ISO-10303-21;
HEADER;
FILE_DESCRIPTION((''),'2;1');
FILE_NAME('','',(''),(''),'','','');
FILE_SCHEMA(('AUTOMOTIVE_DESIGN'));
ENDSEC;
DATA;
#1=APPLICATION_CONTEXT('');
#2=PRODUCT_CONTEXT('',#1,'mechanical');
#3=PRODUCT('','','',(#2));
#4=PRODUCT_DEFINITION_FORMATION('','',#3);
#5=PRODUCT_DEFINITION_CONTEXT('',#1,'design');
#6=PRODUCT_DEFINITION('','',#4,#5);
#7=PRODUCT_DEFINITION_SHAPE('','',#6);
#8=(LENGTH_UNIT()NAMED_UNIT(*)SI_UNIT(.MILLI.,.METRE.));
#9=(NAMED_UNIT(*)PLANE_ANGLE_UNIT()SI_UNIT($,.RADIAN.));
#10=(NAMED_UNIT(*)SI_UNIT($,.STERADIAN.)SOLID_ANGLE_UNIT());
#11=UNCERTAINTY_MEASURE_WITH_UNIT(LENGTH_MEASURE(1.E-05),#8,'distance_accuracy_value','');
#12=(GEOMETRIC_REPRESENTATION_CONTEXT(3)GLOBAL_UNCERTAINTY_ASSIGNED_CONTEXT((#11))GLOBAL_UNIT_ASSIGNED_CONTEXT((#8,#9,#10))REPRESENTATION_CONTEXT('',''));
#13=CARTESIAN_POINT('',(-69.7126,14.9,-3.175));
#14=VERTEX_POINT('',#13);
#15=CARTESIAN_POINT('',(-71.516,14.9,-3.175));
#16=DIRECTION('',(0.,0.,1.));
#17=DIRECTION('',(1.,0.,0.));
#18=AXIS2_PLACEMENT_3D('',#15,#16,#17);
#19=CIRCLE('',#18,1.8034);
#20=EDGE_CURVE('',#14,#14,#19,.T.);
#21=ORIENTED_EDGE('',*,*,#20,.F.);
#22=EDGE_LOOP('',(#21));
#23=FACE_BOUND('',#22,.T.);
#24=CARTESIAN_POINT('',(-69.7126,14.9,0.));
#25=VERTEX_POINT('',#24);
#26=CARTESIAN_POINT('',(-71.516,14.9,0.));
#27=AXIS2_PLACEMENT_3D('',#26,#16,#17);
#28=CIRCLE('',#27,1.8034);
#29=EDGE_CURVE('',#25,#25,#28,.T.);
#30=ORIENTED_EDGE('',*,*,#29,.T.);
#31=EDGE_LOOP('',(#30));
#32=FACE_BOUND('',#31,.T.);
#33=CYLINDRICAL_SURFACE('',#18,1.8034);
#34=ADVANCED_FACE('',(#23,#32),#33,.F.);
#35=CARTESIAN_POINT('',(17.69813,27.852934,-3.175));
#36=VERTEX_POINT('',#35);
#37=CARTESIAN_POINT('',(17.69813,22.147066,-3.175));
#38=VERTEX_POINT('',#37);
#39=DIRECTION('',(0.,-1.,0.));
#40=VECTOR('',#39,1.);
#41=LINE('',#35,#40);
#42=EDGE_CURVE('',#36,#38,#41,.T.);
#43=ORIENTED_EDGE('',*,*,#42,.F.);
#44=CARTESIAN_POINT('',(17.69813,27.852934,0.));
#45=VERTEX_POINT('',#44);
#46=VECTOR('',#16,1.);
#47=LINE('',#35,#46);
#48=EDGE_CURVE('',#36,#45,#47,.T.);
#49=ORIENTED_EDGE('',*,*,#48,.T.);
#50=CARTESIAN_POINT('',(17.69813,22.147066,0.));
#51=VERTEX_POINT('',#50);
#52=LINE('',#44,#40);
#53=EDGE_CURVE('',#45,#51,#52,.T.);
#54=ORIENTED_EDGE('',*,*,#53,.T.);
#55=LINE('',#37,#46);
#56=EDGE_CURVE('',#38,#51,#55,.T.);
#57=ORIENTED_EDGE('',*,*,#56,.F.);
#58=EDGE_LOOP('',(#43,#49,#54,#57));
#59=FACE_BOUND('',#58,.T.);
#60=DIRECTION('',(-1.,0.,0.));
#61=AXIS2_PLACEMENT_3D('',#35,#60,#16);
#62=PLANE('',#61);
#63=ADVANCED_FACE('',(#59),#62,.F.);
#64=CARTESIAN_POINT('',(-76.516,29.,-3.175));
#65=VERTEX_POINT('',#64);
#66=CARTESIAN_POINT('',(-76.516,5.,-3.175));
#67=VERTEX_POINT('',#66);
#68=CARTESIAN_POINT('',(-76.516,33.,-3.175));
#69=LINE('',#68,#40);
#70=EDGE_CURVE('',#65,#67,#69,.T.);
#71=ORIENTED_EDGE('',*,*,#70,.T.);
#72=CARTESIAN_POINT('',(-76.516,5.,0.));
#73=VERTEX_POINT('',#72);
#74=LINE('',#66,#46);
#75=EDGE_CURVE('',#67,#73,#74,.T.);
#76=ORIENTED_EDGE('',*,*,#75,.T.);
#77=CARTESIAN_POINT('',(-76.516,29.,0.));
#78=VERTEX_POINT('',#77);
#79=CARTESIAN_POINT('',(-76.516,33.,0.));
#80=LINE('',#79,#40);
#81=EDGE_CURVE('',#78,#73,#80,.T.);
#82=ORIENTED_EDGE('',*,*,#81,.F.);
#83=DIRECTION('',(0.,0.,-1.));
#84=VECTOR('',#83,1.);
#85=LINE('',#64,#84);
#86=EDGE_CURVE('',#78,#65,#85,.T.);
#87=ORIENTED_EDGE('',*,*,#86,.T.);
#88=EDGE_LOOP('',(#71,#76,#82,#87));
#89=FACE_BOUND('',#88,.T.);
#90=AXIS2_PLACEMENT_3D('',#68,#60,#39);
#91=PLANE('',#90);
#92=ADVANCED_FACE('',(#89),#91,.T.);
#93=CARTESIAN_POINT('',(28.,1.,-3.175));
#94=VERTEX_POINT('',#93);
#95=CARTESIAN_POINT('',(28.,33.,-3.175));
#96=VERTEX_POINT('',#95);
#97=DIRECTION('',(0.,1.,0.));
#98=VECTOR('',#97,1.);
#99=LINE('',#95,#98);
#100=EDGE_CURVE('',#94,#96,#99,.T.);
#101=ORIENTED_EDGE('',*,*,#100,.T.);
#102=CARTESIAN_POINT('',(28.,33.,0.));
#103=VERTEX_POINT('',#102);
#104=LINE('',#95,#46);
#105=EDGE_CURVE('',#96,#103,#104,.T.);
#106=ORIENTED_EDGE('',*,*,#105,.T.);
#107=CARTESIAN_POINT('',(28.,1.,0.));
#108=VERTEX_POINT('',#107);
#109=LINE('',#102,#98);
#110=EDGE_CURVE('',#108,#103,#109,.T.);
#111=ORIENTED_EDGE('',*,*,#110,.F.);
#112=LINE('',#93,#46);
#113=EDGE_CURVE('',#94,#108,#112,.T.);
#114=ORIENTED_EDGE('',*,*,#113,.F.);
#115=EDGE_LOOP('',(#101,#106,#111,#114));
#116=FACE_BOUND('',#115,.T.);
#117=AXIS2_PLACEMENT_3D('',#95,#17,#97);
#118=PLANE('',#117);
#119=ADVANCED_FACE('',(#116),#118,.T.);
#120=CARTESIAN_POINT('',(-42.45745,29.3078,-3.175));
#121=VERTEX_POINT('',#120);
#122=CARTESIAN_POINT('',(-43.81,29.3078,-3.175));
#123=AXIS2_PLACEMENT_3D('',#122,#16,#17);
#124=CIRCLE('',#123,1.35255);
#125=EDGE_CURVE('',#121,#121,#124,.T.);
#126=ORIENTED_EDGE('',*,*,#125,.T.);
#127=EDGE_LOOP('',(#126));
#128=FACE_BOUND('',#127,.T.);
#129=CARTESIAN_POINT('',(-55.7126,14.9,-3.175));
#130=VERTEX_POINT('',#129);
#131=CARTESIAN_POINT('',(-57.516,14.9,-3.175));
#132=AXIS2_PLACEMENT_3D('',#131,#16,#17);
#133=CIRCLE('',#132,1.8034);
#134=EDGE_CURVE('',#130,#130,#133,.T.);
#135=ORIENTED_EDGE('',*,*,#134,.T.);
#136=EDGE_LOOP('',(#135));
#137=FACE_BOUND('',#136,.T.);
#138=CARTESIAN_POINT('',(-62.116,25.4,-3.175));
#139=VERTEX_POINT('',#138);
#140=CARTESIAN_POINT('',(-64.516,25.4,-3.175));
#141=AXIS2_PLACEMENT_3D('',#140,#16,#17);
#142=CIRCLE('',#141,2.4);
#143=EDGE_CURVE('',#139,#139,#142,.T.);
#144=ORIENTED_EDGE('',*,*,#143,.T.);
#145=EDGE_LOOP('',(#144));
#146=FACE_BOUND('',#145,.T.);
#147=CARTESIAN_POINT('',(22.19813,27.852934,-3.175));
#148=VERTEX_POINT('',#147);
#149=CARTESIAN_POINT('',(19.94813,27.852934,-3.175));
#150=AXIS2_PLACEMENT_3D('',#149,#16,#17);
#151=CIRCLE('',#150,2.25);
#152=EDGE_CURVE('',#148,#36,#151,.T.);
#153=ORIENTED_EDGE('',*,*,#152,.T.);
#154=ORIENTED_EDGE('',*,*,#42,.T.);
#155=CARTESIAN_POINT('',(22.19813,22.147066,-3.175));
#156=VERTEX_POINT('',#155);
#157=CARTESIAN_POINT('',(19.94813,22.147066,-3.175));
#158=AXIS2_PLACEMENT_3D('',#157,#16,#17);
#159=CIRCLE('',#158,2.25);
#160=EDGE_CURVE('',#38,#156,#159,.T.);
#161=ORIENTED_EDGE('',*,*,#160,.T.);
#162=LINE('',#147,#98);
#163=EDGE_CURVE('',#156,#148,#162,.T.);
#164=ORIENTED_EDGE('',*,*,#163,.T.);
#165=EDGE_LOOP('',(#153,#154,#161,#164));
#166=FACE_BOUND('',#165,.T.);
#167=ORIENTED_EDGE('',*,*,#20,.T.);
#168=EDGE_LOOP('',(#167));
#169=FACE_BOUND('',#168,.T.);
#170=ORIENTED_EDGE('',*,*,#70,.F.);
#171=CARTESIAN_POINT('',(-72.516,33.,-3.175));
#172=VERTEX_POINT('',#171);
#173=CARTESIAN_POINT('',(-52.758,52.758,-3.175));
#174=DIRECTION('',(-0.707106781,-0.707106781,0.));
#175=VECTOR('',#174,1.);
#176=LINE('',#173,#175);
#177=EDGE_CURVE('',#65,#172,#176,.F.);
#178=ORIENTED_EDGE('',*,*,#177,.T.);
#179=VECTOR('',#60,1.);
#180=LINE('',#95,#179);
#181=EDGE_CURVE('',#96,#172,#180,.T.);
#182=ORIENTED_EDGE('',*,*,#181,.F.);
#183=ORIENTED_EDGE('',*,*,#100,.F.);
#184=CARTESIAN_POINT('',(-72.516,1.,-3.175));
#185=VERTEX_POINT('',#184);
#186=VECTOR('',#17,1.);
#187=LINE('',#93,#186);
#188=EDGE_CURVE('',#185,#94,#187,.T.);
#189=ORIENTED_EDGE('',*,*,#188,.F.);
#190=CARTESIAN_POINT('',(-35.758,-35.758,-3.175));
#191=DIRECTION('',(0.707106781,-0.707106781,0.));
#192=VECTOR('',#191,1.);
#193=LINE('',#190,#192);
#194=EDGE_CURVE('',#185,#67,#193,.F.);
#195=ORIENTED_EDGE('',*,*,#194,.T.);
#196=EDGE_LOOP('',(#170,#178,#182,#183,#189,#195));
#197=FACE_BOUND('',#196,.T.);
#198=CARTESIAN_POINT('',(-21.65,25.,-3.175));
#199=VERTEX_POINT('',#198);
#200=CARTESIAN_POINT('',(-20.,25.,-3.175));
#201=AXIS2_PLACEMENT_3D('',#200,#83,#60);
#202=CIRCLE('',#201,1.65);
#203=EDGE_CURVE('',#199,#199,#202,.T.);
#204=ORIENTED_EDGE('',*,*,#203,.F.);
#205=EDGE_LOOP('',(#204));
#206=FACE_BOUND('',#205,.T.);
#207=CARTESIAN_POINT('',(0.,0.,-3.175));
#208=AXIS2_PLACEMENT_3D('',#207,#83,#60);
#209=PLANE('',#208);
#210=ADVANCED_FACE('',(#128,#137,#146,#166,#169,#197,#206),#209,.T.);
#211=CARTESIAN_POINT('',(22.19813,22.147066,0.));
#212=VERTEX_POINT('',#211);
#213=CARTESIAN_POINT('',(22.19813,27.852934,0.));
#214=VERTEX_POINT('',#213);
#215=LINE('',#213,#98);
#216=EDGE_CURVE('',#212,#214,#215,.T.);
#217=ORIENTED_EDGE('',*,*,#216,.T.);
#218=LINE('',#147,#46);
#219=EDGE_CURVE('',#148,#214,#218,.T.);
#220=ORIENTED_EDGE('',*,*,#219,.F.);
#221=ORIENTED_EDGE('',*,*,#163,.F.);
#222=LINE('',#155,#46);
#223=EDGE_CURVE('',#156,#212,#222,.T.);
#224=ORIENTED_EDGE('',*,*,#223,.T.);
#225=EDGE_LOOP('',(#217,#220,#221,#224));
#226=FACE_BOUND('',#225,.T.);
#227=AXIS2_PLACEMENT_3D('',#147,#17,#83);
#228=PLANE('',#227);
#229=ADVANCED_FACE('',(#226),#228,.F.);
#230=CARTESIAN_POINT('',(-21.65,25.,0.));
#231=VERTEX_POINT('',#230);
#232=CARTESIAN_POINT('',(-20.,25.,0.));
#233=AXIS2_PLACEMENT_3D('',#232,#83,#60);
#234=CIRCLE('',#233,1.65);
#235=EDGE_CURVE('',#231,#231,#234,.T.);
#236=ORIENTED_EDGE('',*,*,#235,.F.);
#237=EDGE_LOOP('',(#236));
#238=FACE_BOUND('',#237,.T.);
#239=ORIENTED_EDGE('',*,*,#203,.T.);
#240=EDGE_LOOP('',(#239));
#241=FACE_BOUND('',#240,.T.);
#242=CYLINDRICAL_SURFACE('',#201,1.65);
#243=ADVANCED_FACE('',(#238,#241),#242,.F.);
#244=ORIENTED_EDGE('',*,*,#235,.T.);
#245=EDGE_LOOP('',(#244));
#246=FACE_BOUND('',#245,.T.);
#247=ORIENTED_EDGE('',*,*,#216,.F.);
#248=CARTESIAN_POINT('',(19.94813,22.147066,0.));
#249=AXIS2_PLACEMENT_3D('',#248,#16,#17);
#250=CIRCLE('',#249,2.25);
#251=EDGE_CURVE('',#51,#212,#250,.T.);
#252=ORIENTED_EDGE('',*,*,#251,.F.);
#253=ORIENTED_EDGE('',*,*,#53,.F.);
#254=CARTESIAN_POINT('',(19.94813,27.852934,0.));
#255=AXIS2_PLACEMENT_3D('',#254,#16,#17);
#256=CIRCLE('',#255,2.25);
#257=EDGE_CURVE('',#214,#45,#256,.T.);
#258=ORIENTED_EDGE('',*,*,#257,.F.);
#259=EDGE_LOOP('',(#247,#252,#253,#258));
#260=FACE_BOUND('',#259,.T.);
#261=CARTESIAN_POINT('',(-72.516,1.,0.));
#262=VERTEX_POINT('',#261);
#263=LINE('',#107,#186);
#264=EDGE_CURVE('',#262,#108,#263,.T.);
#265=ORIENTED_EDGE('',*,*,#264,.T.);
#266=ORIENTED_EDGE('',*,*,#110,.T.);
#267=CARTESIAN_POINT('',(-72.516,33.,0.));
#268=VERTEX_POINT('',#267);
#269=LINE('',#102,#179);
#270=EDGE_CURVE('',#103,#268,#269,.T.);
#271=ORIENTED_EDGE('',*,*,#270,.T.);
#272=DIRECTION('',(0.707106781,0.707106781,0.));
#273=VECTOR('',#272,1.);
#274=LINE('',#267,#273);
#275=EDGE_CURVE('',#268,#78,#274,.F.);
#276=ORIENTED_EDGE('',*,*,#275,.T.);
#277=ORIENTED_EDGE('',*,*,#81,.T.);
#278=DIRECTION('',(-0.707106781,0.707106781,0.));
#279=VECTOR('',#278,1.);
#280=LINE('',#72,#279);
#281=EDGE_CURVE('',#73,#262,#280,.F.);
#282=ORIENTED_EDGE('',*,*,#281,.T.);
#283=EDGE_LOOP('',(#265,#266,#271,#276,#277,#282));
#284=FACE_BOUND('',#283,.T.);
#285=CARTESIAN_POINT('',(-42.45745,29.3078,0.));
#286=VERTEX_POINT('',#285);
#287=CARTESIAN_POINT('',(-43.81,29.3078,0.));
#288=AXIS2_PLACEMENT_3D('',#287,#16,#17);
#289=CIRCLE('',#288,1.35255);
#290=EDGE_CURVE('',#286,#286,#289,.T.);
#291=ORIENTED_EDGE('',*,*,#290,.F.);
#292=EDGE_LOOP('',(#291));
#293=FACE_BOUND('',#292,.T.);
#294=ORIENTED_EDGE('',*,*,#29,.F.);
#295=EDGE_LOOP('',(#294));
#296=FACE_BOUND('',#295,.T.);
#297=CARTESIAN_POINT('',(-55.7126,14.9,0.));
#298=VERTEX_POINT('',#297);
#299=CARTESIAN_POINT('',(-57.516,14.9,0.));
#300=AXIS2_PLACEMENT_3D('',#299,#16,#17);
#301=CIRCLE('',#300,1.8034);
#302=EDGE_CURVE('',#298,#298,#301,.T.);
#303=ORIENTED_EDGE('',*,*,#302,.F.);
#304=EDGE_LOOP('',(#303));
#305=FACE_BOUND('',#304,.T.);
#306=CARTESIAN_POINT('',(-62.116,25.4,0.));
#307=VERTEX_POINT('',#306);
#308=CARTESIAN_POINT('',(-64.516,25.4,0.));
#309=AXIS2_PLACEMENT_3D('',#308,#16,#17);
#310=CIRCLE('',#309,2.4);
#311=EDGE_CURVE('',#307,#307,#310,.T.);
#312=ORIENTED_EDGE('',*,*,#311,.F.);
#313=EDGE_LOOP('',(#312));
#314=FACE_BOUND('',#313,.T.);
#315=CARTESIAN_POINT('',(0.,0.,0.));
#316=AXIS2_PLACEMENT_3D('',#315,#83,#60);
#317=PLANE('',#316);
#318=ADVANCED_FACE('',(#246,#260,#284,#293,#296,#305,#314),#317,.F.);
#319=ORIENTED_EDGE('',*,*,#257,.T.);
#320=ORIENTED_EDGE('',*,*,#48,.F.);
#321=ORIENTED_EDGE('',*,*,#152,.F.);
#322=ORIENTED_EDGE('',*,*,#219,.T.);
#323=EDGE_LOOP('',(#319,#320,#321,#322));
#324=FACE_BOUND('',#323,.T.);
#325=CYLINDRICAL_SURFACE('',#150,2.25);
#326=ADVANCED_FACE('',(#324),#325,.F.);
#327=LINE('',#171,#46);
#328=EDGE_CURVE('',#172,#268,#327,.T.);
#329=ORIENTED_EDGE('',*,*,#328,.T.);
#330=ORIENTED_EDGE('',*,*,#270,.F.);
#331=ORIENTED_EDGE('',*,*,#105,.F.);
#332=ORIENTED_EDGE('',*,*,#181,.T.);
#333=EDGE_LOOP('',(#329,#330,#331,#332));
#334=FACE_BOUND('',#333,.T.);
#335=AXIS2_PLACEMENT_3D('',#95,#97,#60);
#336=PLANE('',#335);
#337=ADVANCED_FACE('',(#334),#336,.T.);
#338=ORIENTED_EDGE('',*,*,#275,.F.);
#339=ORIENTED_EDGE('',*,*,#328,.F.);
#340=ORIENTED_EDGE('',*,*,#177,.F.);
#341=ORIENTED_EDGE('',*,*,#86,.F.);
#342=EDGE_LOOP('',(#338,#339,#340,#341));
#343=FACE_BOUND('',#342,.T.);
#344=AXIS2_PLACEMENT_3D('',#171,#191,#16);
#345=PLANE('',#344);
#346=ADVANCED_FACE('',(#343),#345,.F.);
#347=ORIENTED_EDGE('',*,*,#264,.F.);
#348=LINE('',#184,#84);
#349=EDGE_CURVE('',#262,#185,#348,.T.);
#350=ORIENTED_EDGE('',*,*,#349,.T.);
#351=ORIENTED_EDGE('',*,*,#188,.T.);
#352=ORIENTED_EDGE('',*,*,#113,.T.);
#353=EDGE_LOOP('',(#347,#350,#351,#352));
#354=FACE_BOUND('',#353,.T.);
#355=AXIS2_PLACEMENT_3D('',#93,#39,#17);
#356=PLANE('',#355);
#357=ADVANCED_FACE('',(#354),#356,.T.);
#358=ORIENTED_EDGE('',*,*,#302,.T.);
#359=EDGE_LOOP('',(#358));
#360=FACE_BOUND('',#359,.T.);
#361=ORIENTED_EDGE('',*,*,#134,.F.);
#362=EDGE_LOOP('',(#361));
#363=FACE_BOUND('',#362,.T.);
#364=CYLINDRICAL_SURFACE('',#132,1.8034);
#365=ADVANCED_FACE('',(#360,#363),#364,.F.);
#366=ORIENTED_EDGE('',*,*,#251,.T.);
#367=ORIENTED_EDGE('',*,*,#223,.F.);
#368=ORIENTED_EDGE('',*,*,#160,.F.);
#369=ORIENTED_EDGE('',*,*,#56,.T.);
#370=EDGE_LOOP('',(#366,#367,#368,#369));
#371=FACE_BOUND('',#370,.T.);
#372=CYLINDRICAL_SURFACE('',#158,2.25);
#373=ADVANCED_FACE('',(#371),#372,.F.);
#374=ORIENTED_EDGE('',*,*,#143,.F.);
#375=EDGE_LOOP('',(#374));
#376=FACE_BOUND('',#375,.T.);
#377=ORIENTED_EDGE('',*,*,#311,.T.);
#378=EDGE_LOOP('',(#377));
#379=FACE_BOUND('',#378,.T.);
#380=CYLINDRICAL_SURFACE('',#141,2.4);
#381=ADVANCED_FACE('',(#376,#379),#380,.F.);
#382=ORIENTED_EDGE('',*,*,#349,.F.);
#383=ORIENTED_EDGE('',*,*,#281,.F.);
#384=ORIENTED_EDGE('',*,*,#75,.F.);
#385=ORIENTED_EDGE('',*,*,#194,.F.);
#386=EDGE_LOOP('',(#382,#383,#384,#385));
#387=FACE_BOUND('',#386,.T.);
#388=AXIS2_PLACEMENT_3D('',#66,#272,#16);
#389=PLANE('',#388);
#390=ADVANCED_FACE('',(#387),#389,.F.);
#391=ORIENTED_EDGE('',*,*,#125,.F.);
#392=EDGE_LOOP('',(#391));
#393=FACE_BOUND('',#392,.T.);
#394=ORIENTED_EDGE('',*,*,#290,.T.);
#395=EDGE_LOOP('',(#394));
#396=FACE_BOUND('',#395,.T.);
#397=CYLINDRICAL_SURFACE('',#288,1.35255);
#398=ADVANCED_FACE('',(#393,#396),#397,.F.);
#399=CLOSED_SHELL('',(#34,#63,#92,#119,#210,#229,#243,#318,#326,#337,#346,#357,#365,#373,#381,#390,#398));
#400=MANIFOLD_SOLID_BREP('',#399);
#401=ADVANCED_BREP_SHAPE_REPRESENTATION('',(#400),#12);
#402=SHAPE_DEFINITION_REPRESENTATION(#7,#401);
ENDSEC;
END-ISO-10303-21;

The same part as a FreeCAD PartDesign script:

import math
import FreeCAD as App
import Part
import Sketcher

V = App.Vector


def edges_at(feature, points):
    """Names of the edges that pass closest to the given points."""
    edges = feature.Shape.Edges
    near = lambda p: min(range(len(edges)), key=lambda i: edges[i].distToShape(Part.Vertex(*p))[0])
    return sorted({f"Edge{near(p) + 1}" for p in points})

doc = App.newDocument("Part")
body = doc.addObject("PartDesign::Body", "Body")

sketch1 = body.newObject("Sketcher::SketchObject", "Sketch")
sketch1.AttachmentSupport = (doc.getObject("XY_Plane"), [""])
sketch1.MapMode = "FlatFace"
sketch1.addGeometry(Part.LineSegment(V(-76.5, 33, 0), V(-76.5, 1, 0)), False)
sketch1.addGeometry(Part.LineSegment(V(-76.5, 1, 0), V(28, 1, 0)), False)
sketch1.addGeometry(Part.LineSegment(V(28, 1, 0), V(28, 33, 0)), False)
sketch1.addGeometry(Part.LineSegment(V(28, 33, 0), V(-76.5, 33, 0)), False)
sketch1.addGeometry(Part.Circle(V(-71.5, 14.9, 0), V(0, 0, 1), 1.8), False)
sketch1.addGeometry(Part.Circle(V(-57.5, 14.9, 0), V(0, 0, 1), 1.8), False)
sketch1.addGeometry(Part.Circle(V(-64.5, 25.4, 0), V(0, 0, 1), 2.4), False)
sketch1.addGeometry(Part.ArcOfCircle(Part.Circle(V(19.9, 27.9, 0), V(0, 0, 1), 2.2), math.radians(0), math.radians(180)), False)
sketch1.addGeometry(Part.LineSegment(V(22.2, 27.9, 0), V(22.2, 22.1, 0)), False)
sketch1.addGeometry(Part.ArcOfCircle(Part.Circle(V(19.9, 22.1, 0), V(0, 0, 1), 2.2), math.radians(180), math.radians(360)), False)
sketch1.addGeometry(Part.LineSegment(V(17.7, 22.1, 0), V(17.7, 27.9, 0)), False)
sketch1.addConstraint(Sketcher.Constraint("Coincident", 0, 2, 1, 1))
sketch1.addConstraint(Sketcher.Constraint("Coincident", 1, 2, 2, 1))
sketch1.addConstraint(Sketcher.Constraint("Coincident", 2, 2, 3, 1))
sketch1.addConstraint(Sketcher.Constraint("Coincident", 3, 2, 0, 1))
sketch1.addConstraint(Sketcher.Constraint("Tangent", 7, 1, 8, 1))
sketch1.addConstraint(Sketcher.Constraint("Tangent", 8, 2, 9, 2))
sketch1.addConstraint(Sketcher.Constraint("Tangent", 9, 1, 10, 1))
sketch1.addConstraint(Sketcher.Constraint("Tangent", 10, 2, 7, 2))
sketch1.addConstraint(Sketcher.Constraint("Vertical", 0))
sketch1.addConstraint(Sketcher.Constraint("Horizontal", 1))
sketch1.addConstraint(Sketcher.Constraint("Vertical", 2))
sketch1.addConstraint(Sketcher.Constraint("Horizontal", 3))
sketch1.addConstraint(Sketcher.Constraint("Vertical", 8))
sketch1.addConstraint(Sketcher.Constraint("Vertical", 10))
sketch1.addConstraint(Sketcher.Constraint("Equal", 4, 5))
sketch1.addConstraint(Sketcher.Constraint("Horizontal", 4, 3, 5, 3))
sketch1.addConstraint(Sketcher.Constraint("Diameter", 6, 4.8))
sketch1.addConstraint(Sketcher.Constraint("DistanceY", 0, 2, 0, 1, 32.0))
sketch1.addConstraint(Sketcher.Constraint("Radius", 7, 2.25))
sketch1.addConstraint(Sketcher.Constraint("DistanceY", -1, 1, 0, 2, 1.0))
sketch1.addConstraint(Sketcher.Constraint("DistanceX", -1, 1, 1, 2, 28.0))
sketch1.addConstraint(Sketcher.Constraint("DistanceX", 4, 3, 5, 3, 14.0))
sketch1.addConstraint(Sketcher.Constraint("DistanceX", 4, 3, 6, 3, 7.0))
sketch1.addConstraint(Sketcher.Constraint("DistanceX", 0, 2, 4, 3, 5.0))
sketch1.addConstraint(Sketcher.Constraint("Diameter", 4, 3.6068))
sketch1.addConstraint(Sketcher.Constraint("DistanceY", -1, 1, 4, 3, 14.9))
sketch1.addConstraint(Sketcher.Constraint("DistanceY", -1, 1, 6, 3, 25.4))
sketch1.addConstraint(Sketcher.Constraint("DistanceX", 1, 1, 1, 2, 104.516))
sketch1.addConstraint(Sketcher.Constraint("DistanceY", 8, 2, 8, 1, 5.705869))
sketch1.addConstraint(Sketcher.Constraint("DistanceX", -1, 1, 7, 3, 19.94813))
sketch1.addConstraint(Sketcher.Constraint("DistanceY", -1, 1, 7, 3, 27.852934))
pad1 = body.newObject("PartDesign::Pad", "Pad")
pad1.Profile = sketch1
pad1.Length = 3.175
pad1.Reversed = True

sketch2 = body.newObject("Sketcher::SketchObject", "Sketch001")
sketch2.AttachmentSupport = (doc.getObject("XY_Plane"), [""])
sketch2.MapMode = "FlatFace"
sketch2.AttachmentOffset = App.Placement(V(0, 0, -3.175), App.Rotation())
sketch2.addGeometry(Part.Circle(V(-20, 25, 0), V(0, 0, 1), 1.6), False)
sketch2.addConstraint(Sketcher.Constraint("Diameter", 0, 3.3))
sketch2.addConstraint(Sketcher.Constraint("DistanceX", 0, 3, -1, 1, 20.0))
sketch2.addConstraint(Sketcher.Constraint("DistanceY", -1, 1, 0, 3, 25.0))
doc.recompute()
hole = body.newObject("PartDesign::Hole", "Hole")
hole.Profile = sketch2
hole.ThreadType = "None"
hole.Diameter = 3.3
hole.DepthType = "ThroughAll"
hole.Reversed = True
doc.recompute()

chamfer = body.newObject("PartDesign::Chamfer", "Chamfer")
chamfer.Base = (hole, edges_at(hole, [(-76.516, 1, -1.587), (-76.516, 33, -1.587)]))
chamfer.Size = 4

sketch3 = body.newObject("Sketcher::SketchObject", "Sketch002")
sketch3.AttachmentSupport = (doc.getObject("XY_Plane"), [""])
sketch3.MapMode = "FlatFace"
sketch3.addGeometry(Part.Circle(V(-43.8, 29.3, 0), V(0, 0, 1), 1.4), False)
sketch3.addConstraint(Sketcher.Constraint("Diameter", 0, 2.7051))
sketch3.addConstraint(Sketcher.Constraint("DistanceX", 0, 3, -1, 1, 43.81))
sketch3.addConstraint(Sketcher.Constraint("DistanceY", -1, 1, 0, 3, 29.3078))
doc.recompute()
hole2 = body.newObject("PartDesign::Hole", "Hole001")
hole2.Profile = sketch3
hole2.ThreadType = "None"
hole2.Diameter = 2.7051
hole2.DepthType = "ThroughAll"

doc.recompute()
